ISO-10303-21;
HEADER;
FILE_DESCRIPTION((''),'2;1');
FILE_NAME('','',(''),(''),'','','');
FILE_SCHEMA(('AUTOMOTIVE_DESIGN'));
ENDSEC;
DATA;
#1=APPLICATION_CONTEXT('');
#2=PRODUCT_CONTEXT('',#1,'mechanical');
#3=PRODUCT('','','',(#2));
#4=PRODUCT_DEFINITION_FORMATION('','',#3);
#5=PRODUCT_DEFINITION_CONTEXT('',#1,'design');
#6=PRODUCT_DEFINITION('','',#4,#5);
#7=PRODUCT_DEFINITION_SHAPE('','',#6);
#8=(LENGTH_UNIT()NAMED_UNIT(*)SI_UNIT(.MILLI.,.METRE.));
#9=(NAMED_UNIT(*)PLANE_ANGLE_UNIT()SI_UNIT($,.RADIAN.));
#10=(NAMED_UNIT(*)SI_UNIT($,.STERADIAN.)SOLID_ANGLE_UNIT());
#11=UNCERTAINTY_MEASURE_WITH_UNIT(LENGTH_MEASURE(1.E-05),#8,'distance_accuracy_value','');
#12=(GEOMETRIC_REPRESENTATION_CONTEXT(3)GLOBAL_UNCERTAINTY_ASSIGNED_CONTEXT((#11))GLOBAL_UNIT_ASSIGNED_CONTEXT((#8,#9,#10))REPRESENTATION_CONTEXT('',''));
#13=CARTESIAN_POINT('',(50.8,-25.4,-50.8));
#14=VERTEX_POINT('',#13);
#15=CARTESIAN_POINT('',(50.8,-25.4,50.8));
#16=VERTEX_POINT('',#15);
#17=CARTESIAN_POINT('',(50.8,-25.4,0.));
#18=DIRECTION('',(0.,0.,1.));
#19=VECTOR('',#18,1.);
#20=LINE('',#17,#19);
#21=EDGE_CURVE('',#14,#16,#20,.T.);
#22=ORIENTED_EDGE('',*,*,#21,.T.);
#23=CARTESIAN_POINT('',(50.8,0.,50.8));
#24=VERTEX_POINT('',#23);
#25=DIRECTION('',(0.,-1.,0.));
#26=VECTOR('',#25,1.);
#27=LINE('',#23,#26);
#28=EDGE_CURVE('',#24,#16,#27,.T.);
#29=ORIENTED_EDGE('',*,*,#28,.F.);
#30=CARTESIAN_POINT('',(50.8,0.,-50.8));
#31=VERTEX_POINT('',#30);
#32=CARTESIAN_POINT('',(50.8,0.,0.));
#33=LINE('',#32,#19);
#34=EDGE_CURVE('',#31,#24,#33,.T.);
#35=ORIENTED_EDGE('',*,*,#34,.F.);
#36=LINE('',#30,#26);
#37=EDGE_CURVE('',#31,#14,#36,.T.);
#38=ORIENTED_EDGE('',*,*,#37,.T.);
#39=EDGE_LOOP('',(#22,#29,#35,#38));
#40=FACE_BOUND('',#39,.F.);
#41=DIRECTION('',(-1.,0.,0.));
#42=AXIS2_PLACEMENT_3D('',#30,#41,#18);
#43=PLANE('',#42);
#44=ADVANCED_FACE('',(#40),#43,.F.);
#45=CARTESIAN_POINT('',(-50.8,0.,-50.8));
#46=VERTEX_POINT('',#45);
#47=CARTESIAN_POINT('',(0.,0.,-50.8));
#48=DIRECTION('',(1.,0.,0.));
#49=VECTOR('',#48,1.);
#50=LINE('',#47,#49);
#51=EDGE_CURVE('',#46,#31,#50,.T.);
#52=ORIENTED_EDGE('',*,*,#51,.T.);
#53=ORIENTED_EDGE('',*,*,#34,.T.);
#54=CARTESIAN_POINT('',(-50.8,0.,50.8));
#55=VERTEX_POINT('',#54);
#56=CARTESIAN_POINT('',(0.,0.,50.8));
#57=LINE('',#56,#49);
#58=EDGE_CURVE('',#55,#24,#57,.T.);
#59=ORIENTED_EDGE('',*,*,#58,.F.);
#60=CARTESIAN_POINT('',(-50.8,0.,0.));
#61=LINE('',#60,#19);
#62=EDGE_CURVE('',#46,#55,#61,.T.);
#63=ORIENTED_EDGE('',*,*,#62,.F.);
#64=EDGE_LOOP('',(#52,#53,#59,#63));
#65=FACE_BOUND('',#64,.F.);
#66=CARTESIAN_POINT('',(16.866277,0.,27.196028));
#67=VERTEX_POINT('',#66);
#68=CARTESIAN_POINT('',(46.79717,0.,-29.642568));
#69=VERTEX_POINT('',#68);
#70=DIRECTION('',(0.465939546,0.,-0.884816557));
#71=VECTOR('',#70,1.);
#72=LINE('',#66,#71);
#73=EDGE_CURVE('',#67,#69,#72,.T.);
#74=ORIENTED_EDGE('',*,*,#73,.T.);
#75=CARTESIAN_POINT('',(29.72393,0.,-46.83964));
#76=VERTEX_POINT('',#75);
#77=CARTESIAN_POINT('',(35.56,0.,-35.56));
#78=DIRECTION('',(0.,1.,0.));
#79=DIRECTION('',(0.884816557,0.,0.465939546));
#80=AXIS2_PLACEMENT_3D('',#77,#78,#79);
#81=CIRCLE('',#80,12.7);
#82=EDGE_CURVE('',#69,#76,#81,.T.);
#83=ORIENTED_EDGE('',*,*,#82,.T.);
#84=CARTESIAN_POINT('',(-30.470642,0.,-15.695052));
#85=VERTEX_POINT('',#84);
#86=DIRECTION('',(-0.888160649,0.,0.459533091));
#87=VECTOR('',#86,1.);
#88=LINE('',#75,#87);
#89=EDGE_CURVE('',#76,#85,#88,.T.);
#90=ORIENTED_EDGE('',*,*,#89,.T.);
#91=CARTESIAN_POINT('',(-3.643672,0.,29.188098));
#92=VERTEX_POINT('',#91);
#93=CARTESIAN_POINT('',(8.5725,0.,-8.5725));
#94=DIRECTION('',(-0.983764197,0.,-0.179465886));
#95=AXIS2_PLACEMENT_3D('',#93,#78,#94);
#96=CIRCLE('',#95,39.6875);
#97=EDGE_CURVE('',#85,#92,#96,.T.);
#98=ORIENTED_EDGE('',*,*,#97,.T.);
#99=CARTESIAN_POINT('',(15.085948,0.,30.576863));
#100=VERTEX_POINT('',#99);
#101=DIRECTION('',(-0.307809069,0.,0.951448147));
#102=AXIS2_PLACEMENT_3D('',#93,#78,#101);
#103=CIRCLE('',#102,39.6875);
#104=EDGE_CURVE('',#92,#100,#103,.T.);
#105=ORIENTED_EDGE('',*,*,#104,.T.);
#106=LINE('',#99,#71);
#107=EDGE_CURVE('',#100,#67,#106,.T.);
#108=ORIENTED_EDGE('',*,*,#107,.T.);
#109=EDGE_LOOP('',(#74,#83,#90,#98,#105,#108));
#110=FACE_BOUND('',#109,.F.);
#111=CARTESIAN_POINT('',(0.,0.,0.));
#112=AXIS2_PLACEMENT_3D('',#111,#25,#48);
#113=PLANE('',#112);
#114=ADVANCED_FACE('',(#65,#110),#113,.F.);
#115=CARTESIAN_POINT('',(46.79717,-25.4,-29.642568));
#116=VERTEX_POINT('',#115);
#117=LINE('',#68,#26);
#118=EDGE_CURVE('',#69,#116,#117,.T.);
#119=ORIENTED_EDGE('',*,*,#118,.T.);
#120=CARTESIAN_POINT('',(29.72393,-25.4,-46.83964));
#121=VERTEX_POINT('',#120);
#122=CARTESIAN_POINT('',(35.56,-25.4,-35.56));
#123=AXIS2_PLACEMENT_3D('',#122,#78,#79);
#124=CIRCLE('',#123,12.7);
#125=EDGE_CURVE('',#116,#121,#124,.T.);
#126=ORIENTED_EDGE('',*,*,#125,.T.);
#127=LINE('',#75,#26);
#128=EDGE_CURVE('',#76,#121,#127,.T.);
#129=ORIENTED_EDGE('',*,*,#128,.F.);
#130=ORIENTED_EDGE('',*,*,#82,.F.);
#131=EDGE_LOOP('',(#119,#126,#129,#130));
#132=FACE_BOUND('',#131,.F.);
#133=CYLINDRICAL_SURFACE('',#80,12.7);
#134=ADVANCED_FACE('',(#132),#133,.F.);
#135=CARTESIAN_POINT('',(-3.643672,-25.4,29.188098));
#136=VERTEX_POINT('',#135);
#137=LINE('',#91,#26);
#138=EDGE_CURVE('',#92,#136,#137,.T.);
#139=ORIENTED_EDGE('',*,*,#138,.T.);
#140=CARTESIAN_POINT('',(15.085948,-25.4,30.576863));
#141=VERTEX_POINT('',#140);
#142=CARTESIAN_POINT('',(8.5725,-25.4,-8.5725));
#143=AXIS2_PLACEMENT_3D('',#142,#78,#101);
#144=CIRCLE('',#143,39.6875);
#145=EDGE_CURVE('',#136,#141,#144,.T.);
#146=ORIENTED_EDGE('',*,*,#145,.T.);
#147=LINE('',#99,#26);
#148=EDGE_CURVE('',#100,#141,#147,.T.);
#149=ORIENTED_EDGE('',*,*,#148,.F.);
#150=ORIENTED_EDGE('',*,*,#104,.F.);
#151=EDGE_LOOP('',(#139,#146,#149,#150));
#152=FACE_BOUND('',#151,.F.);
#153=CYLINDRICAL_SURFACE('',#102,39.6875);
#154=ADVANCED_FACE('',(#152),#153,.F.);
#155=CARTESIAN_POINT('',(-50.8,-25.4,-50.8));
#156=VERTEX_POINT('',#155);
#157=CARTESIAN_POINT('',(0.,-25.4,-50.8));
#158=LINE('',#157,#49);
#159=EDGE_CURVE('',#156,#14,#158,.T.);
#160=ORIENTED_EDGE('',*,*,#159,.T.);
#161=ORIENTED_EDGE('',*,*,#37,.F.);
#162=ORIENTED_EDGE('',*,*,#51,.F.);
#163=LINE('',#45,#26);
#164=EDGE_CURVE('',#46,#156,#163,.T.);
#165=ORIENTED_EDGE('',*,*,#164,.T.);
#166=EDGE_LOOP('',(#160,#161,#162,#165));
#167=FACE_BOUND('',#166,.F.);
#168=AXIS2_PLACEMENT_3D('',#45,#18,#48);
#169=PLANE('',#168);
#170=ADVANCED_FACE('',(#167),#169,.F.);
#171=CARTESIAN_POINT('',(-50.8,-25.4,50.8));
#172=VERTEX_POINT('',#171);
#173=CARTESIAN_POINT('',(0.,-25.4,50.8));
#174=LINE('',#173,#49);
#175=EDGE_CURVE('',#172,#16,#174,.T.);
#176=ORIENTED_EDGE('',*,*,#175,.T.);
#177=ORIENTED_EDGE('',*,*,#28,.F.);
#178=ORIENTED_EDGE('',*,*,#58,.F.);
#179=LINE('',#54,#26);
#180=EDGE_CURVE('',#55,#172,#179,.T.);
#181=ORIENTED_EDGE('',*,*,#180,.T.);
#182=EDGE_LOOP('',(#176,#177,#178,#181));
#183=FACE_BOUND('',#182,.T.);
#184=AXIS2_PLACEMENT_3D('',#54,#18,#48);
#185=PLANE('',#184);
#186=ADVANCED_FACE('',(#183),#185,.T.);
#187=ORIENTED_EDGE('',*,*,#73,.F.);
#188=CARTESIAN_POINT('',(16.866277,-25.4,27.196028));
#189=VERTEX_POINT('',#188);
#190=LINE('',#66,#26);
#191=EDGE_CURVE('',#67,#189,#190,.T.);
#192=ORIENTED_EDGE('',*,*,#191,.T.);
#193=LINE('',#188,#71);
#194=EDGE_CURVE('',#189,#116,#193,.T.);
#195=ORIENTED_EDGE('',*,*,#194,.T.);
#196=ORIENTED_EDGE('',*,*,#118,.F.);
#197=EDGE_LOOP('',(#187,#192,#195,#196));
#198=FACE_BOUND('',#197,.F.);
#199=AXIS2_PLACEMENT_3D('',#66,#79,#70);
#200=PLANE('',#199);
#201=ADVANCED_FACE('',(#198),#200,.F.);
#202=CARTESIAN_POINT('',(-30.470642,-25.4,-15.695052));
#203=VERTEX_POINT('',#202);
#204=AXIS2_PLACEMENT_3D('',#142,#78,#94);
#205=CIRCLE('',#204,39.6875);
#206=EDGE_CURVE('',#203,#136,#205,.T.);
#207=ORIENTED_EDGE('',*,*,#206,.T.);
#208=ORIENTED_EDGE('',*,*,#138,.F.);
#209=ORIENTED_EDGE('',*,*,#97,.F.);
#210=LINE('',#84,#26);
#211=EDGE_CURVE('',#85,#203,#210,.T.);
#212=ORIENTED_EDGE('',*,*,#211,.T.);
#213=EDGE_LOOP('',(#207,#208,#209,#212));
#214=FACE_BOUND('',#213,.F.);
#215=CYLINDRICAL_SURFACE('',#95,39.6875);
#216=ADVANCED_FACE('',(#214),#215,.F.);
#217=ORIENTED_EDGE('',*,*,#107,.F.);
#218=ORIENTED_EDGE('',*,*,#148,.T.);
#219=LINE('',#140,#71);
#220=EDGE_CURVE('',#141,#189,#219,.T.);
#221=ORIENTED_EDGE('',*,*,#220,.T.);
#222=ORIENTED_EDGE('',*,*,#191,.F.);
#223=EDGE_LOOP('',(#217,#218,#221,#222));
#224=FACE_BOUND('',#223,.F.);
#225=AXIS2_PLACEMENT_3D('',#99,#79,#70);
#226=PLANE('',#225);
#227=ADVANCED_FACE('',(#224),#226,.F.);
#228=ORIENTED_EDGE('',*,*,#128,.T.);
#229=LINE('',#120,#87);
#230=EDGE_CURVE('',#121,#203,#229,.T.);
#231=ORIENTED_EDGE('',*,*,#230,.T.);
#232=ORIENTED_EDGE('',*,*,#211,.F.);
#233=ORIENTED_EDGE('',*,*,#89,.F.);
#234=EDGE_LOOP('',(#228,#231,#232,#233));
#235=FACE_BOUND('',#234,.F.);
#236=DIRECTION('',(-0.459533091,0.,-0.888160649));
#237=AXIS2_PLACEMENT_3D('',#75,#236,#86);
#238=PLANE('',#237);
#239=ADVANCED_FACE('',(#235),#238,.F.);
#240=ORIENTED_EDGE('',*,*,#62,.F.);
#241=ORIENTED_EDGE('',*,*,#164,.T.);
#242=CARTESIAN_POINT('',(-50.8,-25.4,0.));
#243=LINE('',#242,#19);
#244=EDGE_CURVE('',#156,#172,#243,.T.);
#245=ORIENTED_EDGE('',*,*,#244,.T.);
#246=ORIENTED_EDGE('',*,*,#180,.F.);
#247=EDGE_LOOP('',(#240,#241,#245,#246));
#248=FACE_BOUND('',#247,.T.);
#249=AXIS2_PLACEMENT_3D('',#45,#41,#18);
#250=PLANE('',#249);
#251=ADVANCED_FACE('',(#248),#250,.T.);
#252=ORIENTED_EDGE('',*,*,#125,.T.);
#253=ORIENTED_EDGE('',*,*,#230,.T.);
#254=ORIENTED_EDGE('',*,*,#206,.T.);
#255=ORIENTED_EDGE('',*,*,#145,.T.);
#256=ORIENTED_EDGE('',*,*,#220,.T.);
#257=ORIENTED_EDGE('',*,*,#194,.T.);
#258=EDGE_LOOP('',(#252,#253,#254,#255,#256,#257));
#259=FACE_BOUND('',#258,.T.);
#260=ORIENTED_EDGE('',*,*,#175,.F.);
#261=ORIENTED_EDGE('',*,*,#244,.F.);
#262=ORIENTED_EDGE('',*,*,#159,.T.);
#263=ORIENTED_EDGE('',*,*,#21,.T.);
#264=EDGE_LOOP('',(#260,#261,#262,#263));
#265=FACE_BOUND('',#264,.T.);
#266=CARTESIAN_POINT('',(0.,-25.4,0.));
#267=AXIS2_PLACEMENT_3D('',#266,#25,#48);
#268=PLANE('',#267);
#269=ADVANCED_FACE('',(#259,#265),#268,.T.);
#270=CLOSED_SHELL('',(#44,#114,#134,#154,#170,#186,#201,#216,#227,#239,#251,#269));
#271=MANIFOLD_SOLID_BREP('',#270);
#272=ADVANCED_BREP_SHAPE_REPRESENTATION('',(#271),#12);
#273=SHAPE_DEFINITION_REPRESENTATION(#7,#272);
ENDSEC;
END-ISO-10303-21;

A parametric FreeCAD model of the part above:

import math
import FreeCAD as App
import Part
import Sketcher

V = App.Vector
Q = App.Units.Quantity


def add_polygon(sketch, points):
    """Adds a closed chain of lines whose ends are joined by coincident constraints."""
    first, n = sketch.GeometryCount, len(points)
    for a, b in zip(points, points[1:] + points[:1]):
        sketch.addGeometry(Part.LineSegment(App.Vector(*a, 0), App.Vector(*b, 0)), False)
    for i in range(n):
        sketch.addConstraint(Sketcher.Constraint("Coincident", first + i, 2, first + (i + 1) % n, 1))

doc = App.newDocument("Part")
params = doc.addObject("Spreadsheet::Sheet", "Params")
for row, (alias, value) in enumerate([
    ("sketch1_radius", "0.5 in"),
    ("sketch1_width", "4 in"),
    ("sketch1_radius2", "1.5625 in"),
    ("pad1_length", "1 in"),
], start=1):
    params.set(f"A{row}", alias)
    params.set(f"B{row}", "=" + value)
    params.setAlias(f"B{row}", alias)

body = doc.addObject("PartDesign::Body", "Body")

# Sketch on XZ plane
sketch1 = body.newObject("Sketcher::SketchObject", "Sketch")
sketch1.AttachmentSupport = (doc.getObject("XZ_Plane"), [""])
sketch1.MapMode = "FlatFace"
add_polygon(sketch1, [(-50.8, 50.8), (-50.8, -50.8), (50.8, -50.8), (50.8, 50.8)])  # lines 0-3
sketch1.addGeometry(Part.LineSegment(V(16.9, 27.2, 0), V(46.8, -29.6, 0)), False)  # 4
sketch1.addGeometry(Part.ArcOfCircle(Part.Circle(V(35.6, -35.6, 0), V(0, 0, 1), 12.7), math.radians(-117), math.radians(28)), False)  # 5
sketch1.addGeometry(Part.LineSegment(V(29.7, -46.8, 0), V(-30.5, -15.7, 0)), False)  # 6
sketch1.addGeometry(Part.ArcOfCircle(Part.Circle(V(8.6, -8.6, 0), V(0, 0, 1), 39.7), math.radians(108), math.radians(190)), False)  # 7
sketch1.addGeometry(Part.ArcOfCircle(Part.Circle(V(8.6, -8.6, 0), V(0, 0, 1), 39.7), math.radians(81), math.radians(108)), False)  # 8
sketch1.addGeometry(Part.LineSegment(V(15.1, 30.6, 0), V(16.9, 27.2, 0)), False)  # 9
sketch1.addConstraint([
    Sketcher.Constraint("Tangent", 4, 2, 5, 2),
    Sketcher.Constraint("Tangent", 5, 1, 6, 1),
    Sketcher.Constraint("Coincident", 6, 2, 7, 2),
    Sketcher.Constraint("Tangent", 7, 1, 8, 2),
    Sketcher.Constraint("Coincident", 8, 1, 9, 1),
    Sketcher.Constraint("Coincident", 9, 2, 4, 1),
    Sketcher.Constraint("Vertical", 0),
    Sketcher.Constraint("Horizontal", 1),
    Sketcher.Constraint("Vertical", 2),
    Sketcher.Constraint("Horizontal", 3),
    Sketcher.Constraint("Equal", 7, 8),
    Sketcher.Constraint("Symmetric", 0, 2, 2, 2, -1, 1),
    Sketcher.Constraint("Parallel", 4, 9),
    Sketcher.Constraint("Equal", 3, 0),
    Sketcher.Constraint("Radius", 5, Q("0.5 in")),
    Sketcher.Constraint("DistanceX", 1, 1, 1, 2, Q("4 in")),
    Sketcher.Constraint("Radius", 7, Q("1.5625 in")),
    Sketcher.Constraint("DistanceX", -1, 1, 5, 3, Q("1.4 in")),
    Sketcher.Constraint("DistanceY", 5, 3, -1, 1, Q("1.4 in")),
    Sketcher.Constraint("DistanceX", 7, 3, 5, 3, Q("1.0625 in")),
    Sketcher.Constraint("DistanceY", 5, 3, 7, 3, Q("1.0625 in")),
    Sketcher.Constraint("DistanceY", -1, 1, 7, 1, 29.188098),
    Sketcher.Constraint("Distance", 6, 67.774418),
    Sketcher.Constraint("DistanceX", -1, 1, 4, 2, 46.79717),
    Sketcher.Constraint("DistanceY", -1, 1, 9, 2, 27.196028),
])
sketch1.setExpression("Constraints[18]", "Params.sketch1_radius")
sketch1.setExpression("Constraints[19]", "Params.sketch1_width")
sketch1.setExpression("Constraints[20]", "Params.sketch1_radius2")
pad1 = body.newObject("PartDesign::Pad", "Pad")
pad1.Profile = sketch1
pad1.setExpression("Length", "Params.pad1_length")

doc.recompute()
